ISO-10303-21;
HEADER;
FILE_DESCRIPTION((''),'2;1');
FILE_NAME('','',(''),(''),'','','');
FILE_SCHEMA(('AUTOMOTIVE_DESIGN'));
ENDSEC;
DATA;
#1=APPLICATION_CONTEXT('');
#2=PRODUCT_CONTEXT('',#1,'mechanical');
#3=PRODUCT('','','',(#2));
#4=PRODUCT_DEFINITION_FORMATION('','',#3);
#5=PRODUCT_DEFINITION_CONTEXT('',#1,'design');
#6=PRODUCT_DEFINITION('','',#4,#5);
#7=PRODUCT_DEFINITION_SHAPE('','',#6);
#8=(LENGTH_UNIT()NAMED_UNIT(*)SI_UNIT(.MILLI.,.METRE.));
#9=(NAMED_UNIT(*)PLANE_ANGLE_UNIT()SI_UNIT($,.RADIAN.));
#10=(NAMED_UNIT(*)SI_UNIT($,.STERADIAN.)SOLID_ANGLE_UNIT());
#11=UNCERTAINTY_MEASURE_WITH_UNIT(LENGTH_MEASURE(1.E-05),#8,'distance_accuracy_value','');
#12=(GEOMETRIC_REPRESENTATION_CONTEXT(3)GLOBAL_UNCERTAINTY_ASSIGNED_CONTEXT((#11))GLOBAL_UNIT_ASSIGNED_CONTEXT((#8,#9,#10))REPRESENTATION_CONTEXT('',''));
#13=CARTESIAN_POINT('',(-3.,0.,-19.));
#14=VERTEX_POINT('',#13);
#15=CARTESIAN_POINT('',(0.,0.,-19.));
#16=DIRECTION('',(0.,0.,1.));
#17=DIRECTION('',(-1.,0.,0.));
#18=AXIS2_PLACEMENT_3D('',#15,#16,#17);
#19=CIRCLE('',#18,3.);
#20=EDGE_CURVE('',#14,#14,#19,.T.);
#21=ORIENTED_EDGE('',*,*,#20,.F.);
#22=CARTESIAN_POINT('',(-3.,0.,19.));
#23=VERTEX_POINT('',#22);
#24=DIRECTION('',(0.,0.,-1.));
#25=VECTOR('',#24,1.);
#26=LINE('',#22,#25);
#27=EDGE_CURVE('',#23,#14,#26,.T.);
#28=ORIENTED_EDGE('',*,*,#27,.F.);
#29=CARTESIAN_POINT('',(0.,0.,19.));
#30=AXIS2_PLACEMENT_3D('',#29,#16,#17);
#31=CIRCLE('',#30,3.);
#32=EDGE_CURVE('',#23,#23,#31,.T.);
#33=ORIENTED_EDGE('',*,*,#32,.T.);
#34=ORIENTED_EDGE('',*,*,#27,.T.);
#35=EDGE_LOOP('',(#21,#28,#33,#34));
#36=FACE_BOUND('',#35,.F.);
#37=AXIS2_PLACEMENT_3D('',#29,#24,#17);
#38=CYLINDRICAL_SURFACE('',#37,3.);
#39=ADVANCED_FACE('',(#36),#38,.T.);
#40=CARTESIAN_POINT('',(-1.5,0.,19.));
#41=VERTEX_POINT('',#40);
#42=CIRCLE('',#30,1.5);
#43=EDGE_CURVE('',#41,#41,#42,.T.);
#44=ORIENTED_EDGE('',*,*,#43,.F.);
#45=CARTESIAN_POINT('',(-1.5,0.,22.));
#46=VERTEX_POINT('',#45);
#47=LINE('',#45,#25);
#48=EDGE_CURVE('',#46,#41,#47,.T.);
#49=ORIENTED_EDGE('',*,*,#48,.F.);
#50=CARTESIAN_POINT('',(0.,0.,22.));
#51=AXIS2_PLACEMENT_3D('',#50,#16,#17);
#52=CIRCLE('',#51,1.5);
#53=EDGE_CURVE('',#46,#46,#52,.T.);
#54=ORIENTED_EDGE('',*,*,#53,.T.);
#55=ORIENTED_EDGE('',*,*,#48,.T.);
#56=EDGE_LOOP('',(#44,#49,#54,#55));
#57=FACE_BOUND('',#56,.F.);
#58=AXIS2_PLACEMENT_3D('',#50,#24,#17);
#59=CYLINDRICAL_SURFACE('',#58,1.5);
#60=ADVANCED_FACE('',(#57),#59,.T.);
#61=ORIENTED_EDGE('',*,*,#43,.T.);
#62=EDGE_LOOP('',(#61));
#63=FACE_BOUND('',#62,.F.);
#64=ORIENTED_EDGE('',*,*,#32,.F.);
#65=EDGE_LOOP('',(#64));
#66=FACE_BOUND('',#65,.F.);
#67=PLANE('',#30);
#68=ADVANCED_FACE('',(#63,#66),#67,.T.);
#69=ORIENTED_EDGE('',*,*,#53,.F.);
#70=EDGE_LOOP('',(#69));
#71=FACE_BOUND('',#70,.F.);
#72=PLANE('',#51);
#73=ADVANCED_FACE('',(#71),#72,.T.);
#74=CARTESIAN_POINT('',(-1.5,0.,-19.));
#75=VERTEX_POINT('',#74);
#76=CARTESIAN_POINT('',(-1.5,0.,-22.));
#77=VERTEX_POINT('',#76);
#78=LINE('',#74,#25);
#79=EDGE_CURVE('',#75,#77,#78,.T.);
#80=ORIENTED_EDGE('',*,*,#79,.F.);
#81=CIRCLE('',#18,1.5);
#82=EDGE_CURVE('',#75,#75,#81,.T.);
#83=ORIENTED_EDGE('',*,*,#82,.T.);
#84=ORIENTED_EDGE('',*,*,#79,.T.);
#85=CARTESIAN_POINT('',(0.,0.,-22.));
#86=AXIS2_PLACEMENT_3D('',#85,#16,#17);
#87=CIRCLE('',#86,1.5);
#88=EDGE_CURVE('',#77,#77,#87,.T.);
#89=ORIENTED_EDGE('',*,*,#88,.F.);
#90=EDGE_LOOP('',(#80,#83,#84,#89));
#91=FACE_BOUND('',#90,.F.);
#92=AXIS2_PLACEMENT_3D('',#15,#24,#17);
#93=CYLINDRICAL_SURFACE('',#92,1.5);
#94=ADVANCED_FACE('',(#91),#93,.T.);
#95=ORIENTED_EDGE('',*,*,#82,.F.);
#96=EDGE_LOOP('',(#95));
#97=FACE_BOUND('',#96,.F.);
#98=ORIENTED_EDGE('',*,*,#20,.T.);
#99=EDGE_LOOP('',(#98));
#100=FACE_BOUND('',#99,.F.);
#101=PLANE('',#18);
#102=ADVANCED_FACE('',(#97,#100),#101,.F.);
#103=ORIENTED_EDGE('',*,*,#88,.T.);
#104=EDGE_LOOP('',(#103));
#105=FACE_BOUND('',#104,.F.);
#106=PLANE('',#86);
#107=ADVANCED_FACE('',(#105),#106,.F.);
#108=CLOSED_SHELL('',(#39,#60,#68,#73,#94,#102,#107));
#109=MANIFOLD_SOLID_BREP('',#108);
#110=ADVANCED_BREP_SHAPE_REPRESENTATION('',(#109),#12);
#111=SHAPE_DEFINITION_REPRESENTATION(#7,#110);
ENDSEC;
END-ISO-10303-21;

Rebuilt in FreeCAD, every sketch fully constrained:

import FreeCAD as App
import Part
import Sketcher


def add_polygon(sketch, points):
    """Adds a closed chain of lines whose ends are joined by coincident constraints."""
    first, n = sketch.GeometryCount, len(points)
    for a, b in zip(points, points[1:] + points[:1]):
        sketch.addGeometry(Part.LineSegment(App.Vector(*a, 0), App.Vector(*b, 0)), False)
    for i in range(n):
        sketch.addConstraint(Sketcher.Constraint("Coincident", first + i, 2, first + (i + 1) % n, 1))

doc = App.newDocument("Part")
body = doc.addObject("PartDesign::Body", "Body")

# Sketch on XZ plane
sketch1 = body.newObject("Sketcher::SketchObject", "Sketch")
sketch1.AttachmentSupport = (doc.getObject("XZ_Plane"), [""])
sketch1.MapMode = "FlatFace"
add_polygon(sketch1, [(0, 22), (0, -22), (-1.5, -22), (-1.5, -19), (-3, -19), (-3, 19), (-1.5, 19), (-1.5, 22)])  # lines 0-7
sketch1.addConstraint([
    Sketcher.Constraint("Vertical", 0),
    Sketcher.Constraint("Horizontal", 1),
    Sketcher.Constraint("Vertical", 2),
    Sketcher.Constraint("Horizontal", 3),
    Sketcher.Constraint("Vertical", 4),
    Sketcher.Constraint("Horizontal", 5),
    Sketcher.Constraint("Vertical", 6),
    Sketcher.Constraint("Horizontal", 7),
    Sketcher.Constraint("Symmetric", 0, 2, 7, 2, -1, 1),
    Sketcher.Constraint("Symmetric", 2, 2, 5, 2, -1),
    Sketcher.Constraint("Equal", 1, 3),
    Sketcher.Constraint("DistanceY", 0, 2, 0, 1, 44.0),
    Sketcher.Constraint("DistanceY", 2, 1, 2, 2, 3.0),
    Sketcher.Constraint("DistanceX", 3, 2, -1, 1, 3.0),
])
revolution = body.newObject("PartDesign::Revolution", "Revolution")
revolution.Profile = sketch1
revolution.ReferenceAxis = (sketch1, ["V_Axis"])
revolution.Angle = 360

doc.recompute()
